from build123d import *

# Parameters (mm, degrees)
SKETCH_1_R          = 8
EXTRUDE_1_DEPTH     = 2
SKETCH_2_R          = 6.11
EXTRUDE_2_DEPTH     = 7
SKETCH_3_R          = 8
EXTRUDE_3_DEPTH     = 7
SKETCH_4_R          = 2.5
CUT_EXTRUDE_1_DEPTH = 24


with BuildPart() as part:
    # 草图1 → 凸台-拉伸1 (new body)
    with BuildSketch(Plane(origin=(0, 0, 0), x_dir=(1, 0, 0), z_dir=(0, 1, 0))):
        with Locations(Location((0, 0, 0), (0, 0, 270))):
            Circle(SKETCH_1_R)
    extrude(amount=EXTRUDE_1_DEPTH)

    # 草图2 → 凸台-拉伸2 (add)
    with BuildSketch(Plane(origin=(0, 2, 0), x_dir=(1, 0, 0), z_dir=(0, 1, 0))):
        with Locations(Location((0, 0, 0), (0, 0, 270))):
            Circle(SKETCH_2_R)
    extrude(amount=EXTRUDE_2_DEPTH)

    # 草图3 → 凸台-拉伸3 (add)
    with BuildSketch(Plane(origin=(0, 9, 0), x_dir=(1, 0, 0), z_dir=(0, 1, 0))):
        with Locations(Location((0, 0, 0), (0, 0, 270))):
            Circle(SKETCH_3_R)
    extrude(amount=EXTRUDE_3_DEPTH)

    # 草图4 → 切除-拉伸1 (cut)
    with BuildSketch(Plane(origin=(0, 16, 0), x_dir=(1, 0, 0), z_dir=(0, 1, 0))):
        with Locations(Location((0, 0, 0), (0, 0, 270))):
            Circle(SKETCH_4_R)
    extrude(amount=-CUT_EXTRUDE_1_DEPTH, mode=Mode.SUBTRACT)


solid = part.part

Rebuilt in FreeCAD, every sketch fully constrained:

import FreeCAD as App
import Part
import Sketcher
from FreeCAD import Vector
Q = App.Units.Quantity

doc = App.newDocument("Part")
body = doc.addObject("PartDesign::Body", "Body")

sketch1 = doc.addObject("Sketcher::SketchObject", "Sketch")
body.addObject(sketch1)
sketch1.AttachmentSupport = (doc.XZ_Plane, [""])
sketch1.MapMode = "FlatFace"
sketch1.addGeometry(Part.Circle(Vector(0, 0, 0), Vector(0, 0, 1), 8), False)
sketch1.addConstraint(Sketcher.Constraint("Coincident", 0, 3, -1, 1))
sketch1.addConstraint(Sketcher.Constraint("Diameter", 0, Q("16 mm")))
pad1 = doc.addObject("PartDesign::Pad", "Pad")
body.addObject(pad1)
pad1.Profile = sketch1
pad1.Length = 2
pad1.Reversed = True

sketch2 = doc.addObject("Sketcher::SketchObject", "Sketch001")
body.addObject(sketch2)
sketch2.AttachmentSupport = (doc.XZ_Plane, [""])
sketch2.MapMode = "FlatFace"
sketch2.AttachmentOffset = App.Placement(Vector(0, 0, -2), App.Rotation())
sketch2.addGeometry(Part.Circle(Vector(0, 0, 0), Vector(0, 0, 1), 6), False)
sketch2.addConstraint(Sketcher.Constraint("Coincident", 0, 3, -1, 1))
sketch2.addConstraint(Sketcher.Constraint("Diameter", 0, Q("12.22 mm")))
pad2 = doc.addObject("PartDesign::Pad", "Pad001")
body.addObject(pad2)
pad2.Profile = sketch2
pad2.Length = 7
pad2.Reversed = True

sketch3 = doc.addObject("Sketcher::SketchObject", "Sketch002")
body.addObject(sketch3)
sketch3.AttachmentSupport = (doc.XZ_Plane, [""])
sketch3.MapMode = "FlatFace"
sketch3.AttachmentOffset = App.Placement(Vector(0, 0, -9), App.Rotation())
sketch3.addGeometry(Part.Circle(Vector(0, 0, 0), Vector(0, 0, 1), 8), False)
sketch3.addConstraint(Sketcher.Constraint("Coincident", 0, 3, -1, 1))
sketch3.addConstraint(Sketcher.Constraint("Diameter", 0, Q("16 mm")))
pad3 = doc.addObject("PartDesign::Pad", "Pad002")
body.addObject(pad3)
pad3.Profile = sketch3
pad3.Length = 7
pad3.Reversed = True

sketch4 = doc.addObject("Sketcher::SketchObject", "Sketch003")
body.addObject(sketch4)
sketch4.AttachmentSupport = (doc.XZ_Plane, [""])
sketch4.MapMode = "FlatFace"
sketch4.AttachmentOffset = App.Placement(Vector(0, 0, -16), App.Rotation())
sketch4.addGeometry(Part.Circle(Vector(0, 0, 0), Vector(0, 0, 1), 2.5), False)
sketch4.addConstraint(Sketcher.Constraint("Coincident", 0, 3, -1, 1))
sketch4.addConstraint(Sketcher.Constraint("Diameter", 0, Q("5 mm")))
pocket1 = doc.addObject("PartDesign::Pocket", "Pocket")
body.addObject(pocket1)
pocket1.Profile = sketch4
pocket1.Length = 24
pocket1.Reversed = True

doc.recompute()
